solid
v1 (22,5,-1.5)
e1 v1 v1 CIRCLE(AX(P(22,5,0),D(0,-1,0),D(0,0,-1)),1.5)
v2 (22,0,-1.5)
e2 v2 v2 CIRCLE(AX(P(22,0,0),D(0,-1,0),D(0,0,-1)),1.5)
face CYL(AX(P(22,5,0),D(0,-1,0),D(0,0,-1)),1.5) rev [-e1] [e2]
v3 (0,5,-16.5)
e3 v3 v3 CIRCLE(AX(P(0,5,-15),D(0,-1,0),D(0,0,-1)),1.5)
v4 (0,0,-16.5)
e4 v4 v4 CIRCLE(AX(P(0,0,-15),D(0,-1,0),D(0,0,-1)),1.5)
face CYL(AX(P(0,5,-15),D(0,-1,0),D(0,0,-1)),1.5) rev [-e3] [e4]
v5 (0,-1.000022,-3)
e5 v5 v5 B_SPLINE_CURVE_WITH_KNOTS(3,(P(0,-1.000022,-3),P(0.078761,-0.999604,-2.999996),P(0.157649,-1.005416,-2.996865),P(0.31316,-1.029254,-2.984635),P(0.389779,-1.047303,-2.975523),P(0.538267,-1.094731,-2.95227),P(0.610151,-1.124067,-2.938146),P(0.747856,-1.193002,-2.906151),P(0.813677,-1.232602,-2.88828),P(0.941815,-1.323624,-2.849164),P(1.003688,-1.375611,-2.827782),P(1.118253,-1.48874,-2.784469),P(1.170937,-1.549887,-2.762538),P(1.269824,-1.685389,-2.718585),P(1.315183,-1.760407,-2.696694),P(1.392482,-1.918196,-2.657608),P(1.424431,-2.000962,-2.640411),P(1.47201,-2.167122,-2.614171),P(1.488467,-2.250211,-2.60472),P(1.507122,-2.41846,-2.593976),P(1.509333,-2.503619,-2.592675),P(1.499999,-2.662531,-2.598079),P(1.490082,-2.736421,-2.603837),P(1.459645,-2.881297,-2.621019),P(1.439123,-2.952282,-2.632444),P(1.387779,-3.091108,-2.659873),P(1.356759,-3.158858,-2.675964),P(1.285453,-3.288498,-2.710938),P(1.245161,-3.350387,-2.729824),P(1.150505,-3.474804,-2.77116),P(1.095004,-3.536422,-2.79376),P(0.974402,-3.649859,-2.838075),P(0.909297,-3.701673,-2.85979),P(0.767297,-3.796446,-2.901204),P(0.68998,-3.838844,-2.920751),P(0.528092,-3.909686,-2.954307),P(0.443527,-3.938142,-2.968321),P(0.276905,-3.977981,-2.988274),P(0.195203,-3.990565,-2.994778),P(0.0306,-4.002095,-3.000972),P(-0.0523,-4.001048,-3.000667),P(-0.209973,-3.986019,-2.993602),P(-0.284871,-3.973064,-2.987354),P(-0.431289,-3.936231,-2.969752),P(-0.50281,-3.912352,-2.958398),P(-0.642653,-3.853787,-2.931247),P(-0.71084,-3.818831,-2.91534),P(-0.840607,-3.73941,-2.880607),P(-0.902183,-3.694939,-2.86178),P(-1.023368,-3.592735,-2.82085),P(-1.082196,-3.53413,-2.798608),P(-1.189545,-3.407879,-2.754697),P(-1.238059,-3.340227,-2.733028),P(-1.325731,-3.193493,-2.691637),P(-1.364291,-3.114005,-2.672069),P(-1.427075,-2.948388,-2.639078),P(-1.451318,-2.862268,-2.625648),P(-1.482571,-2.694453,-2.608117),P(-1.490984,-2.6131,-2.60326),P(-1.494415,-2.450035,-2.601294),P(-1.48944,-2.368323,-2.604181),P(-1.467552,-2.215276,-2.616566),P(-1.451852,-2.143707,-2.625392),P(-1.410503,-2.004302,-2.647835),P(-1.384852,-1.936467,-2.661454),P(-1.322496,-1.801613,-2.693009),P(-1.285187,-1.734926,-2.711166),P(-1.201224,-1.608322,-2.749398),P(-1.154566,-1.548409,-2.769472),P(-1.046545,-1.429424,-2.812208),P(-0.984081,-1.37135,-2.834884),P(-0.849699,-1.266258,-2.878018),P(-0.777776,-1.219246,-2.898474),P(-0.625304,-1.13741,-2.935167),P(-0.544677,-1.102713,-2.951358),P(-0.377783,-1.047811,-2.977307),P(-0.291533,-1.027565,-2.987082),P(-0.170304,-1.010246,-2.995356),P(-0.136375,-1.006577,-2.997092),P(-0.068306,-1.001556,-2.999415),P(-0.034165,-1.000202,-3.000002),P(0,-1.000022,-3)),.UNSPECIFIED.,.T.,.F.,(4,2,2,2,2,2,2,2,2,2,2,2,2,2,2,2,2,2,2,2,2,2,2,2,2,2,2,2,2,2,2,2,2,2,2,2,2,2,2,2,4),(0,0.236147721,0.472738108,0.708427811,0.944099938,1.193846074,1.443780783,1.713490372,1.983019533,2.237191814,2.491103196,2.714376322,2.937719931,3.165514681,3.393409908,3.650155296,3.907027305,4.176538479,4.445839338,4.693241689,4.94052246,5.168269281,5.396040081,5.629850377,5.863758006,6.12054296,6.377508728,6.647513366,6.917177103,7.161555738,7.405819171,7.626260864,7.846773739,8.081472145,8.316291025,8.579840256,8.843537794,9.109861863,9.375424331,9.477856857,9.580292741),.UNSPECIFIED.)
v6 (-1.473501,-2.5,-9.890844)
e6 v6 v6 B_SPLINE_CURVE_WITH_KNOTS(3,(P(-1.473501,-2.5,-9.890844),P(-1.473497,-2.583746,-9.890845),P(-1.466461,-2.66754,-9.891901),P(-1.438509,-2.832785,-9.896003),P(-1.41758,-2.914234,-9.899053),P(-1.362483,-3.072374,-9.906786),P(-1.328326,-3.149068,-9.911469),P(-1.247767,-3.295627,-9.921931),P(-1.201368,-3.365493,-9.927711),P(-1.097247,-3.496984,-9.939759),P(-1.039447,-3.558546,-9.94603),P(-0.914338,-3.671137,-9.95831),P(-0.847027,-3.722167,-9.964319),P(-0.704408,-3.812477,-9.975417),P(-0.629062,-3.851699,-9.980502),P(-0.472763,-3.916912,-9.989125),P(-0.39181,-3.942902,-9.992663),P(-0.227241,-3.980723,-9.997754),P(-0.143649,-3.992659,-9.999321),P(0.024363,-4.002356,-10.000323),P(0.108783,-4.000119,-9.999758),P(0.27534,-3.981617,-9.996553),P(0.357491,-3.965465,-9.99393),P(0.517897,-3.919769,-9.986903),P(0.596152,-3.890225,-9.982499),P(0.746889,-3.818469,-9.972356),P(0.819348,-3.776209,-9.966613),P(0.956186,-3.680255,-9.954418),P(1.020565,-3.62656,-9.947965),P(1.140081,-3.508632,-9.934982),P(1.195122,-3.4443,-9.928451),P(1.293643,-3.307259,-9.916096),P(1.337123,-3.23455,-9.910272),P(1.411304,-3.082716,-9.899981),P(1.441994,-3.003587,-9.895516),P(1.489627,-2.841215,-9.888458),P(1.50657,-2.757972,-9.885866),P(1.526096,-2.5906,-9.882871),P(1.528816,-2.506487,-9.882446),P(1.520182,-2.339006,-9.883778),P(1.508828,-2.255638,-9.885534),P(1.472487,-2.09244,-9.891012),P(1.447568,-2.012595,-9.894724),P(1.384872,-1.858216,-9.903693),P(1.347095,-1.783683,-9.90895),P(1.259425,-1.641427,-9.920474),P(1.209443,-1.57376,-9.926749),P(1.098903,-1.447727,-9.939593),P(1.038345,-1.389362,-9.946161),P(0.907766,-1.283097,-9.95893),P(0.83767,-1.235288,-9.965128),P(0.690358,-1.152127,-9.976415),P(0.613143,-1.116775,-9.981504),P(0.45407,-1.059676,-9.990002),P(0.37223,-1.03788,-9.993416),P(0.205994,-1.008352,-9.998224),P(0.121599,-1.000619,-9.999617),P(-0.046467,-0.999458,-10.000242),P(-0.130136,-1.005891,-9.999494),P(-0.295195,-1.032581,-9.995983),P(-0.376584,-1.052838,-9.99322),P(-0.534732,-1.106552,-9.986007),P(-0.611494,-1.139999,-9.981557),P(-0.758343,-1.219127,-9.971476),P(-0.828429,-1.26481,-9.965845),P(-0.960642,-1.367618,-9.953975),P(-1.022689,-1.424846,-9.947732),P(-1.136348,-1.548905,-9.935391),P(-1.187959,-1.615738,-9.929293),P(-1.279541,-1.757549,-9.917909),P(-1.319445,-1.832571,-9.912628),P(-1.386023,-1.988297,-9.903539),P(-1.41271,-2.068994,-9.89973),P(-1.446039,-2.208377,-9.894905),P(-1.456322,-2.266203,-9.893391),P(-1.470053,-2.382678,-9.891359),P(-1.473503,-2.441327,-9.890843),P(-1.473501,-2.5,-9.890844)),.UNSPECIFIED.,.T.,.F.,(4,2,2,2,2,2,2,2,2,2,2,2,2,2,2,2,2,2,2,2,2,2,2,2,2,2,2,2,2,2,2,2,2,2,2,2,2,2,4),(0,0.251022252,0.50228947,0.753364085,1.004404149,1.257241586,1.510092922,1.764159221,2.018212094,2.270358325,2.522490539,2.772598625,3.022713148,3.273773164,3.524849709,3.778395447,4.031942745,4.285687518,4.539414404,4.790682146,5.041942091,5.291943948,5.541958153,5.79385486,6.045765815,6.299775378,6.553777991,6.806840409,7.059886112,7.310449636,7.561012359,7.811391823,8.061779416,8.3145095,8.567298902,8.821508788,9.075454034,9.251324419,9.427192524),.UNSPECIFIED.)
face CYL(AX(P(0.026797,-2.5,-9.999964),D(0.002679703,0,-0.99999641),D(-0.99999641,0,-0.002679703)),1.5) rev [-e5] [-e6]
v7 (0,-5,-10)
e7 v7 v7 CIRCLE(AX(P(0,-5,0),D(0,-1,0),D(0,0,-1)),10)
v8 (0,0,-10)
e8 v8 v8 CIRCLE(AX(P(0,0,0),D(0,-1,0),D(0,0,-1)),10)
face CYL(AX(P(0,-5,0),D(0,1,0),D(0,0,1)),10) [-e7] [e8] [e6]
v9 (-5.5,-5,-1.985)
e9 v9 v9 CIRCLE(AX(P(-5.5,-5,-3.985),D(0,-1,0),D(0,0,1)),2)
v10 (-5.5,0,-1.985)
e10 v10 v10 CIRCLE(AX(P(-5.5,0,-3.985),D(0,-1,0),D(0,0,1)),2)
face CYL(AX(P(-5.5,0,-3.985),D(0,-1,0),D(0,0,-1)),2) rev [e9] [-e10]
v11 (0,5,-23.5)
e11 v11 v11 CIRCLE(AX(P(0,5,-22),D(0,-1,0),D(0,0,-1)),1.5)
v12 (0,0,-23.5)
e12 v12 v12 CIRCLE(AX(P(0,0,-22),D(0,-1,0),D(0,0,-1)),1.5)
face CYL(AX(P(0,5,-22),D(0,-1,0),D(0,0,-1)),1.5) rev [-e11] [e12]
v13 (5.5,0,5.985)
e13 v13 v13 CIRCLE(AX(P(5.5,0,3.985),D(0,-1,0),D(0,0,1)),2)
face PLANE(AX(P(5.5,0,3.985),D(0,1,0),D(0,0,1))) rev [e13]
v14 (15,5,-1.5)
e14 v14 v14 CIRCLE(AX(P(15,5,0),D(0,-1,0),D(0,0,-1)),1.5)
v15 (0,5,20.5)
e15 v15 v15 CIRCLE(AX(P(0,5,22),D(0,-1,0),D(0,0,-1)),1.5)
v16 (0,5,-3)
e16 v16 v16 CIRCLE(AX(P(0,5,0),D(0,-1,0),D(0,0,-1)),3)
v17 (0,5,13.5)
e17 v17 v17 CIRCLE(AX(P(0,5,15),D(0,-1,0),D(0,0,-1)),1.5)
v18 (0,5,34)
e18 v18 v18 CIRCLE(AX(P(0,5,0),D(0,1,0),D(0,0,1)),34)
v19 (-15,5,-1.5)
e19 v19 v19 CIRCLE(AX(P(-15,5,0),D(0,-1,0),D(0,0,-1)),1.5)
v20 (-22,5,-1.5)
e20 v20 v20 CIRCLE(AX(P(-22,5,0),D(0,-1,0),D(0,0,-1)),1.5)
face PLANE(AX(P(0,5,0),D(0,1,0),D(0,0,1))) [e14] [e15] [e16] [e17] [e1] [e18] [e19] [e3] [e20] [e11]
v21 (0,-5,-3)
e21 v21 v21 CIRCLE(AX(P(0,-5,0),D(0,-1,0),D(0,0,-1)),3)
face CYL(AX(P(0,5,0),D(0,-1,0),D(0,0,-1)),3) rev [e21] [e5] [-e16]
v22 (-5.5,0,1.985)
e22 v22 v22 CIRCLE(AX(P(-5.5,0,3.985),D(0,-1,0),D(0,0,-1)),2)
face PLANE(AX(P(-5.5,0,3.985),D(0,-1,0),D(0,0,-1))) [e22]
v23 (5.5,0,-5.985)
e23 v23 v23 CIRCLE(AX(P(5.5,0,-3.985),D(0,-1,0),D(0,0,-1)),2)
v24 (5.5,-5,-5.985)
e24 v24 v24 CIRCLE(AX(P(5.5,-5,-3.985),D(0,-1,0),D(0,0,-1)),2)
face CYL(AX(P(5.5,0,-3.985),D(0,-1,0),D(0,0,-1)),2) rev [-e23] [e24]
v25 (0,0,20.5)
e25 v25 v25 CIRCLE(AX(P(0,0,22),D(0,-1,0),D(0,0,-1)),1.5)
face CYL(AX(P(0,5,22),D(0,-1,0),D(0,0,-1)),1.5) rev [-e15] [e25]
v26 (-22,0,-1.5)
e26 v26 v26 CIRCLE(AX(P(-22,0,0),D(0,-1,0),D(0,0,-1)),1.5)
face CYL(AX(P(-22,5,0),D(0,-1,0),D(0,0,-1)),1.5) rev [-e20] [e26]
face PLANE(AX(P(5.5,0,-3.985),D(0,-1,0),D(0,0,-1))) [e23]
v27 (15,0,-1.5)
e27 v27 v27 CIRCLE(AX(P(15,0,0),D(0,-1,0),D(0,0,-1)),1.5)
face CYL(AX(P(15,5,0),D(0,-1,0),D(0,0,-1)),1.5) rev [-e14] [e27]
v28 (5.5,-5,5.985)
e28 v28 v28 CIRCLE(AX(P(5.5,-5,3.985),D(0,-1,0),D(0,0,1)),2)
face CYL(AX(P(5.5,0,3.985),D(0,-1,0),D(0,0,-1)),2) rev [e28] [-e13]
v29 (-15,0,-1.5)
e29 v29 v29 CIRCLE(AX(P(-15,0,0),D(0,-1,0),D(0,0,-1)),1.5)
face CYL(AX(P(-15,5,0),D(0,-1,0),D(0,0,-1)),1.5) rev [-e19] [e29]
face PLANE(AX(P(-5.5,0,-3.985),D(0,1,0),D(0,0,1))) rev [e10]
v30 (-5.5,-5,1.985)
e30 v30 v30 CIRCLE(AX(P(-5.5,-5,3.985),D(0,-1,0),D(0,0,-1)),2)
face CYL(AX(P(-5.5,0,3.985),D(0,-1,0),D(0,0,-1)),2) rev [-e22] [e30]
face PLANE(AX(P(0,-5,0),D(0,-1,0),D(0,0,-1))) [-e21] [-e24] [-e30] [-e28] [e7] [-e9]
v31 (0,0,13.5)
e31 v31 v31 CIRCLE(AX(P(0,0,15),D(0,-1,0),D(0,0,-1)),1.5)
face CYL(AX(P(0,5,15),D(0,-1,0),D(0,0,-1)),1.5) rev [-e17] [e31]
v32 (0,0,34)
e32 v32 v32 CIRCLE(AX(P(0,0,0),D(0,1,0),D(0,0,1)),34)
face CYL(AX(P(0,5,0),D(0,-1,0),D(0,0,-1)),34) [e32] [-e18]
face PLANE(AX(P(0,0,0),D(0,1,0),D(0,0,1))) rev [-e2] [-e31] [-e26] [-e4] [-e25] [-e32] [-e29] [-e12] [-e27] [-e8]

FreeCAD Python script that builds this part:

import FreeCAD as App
import Part
import Sketcher

V = App.Vector

doc = App.newDocument("Part")
body = doc.addObject("PartDesign::Body", "Body")

# Sketch on XZ plane
sketch1 = body.newObject("Sketcher::SketchObject", "Sketch")
sketch1.AttachmentSupport = (doc.getObject("XZ_Plane"), [""])
sketch1.MapMode = "FlatFace"
sketch1.addGeometry(Part.Circle(V(0, 0, 0), V(0, 0, 1), 34), False)
sketch1.addConstraint(Sketcher.Constraint("Coincident", 0, 3, -1, 1))
sketch1.addConstraint(Sketcher.Constraint("Diameter", 0, 68.0))
pad1 = body.newObject("PartDesign::Pad", "Pad")
pad1.Profile = sketch1
pad1.Length = 5
pad1.Reversed = True

# Sketch on XZ plane
sketch2 = body.newObject("Sketcher::SketchObject", "Sketch001")
sketch2.AttachmentSupport = (doc.getObject("XZ_Plane"), [""])
sketch2.MapMode = "FlatFace"
sketch2.addGeometry(Part.Circle(V(0, 22, 0), V(0, 0, 1), 1.5), False)
sketch2.addGeometry(Part.Circle(V(22, 0, 0), V(0, 0, 1), 1.5), False)
sketch2.addGeometry(Part.Circle(V(0, -22, 0), V(0, 0, 1), 1.5), False)
sketch2.addGeometry(Part.Circle(V(-22, 0, 0), V(0, 0, 1), 1.5), False)
sketch2.addConstraint(Sketcher.Constraint("Equal", 0, 1))
sketch2.addConstraint(Sketcher.Constraint("Equal", 1, 2))
sketch2.addConstraint(Sketcher.Constraint("Equal", 2, 3))
sketch2.addConstraint(Sketcher.Constraint("Symmetric", 0, 3, 2, 3, -1, 1))
sketch2.addConstraint(Sketcher.Constraint("Symmetric", 1, 3, 3, 3, -1, 1))
sketch2.addConstraint(Sketcher.Constraint("PointOnObject", 0, 3, -2))
sketch2.addConstraint(Sketcher.Constraint("PointOnObject", 1, 3, -1))
sketch2.addConstraint(Sketcher.Constraint("Diameter", 0, 3.0))
sketch2.addConstraint(Sketcher.Constraint("DistanceY", -1, 1, 0, 3, 22.0))
sketch2.addConstraint(Sketcher.Constraint("DistanceX", -1, 1, 1, 3, 22.0))
pocket1 = body.newObject("PartDesign::Pocket", "Pocket")
pocket1.Profile = sketch2
pocket1.Length = 5

# Sketch on XZ plane
sketch3 = body.newObject("Sketcher::SketchObject", "Sketch002")
sketch3.AttachmentSupport = (doc.getObject("XZ_Plane"), [""])
sketch3.MapMode = "FlatFace"
sketch3.addGeometry(Part.Circle(V(0, 15, 0), V(0, 0, 1), 1.5), False)
sketch3.addGeometry(Part.Circle(V(15, 0, 0), V(0, 0, 1), 1.5), False)
sketch3.addGeometry(Part.Circle(V(0, -15, 0), V(0, 0, 1), 1.5), False)
sketch3.addGeometry(Part.Circle(V(-15, 0, 0), V(0, 0, 1), 1.5), False)
sketch3.addConstraint(Sketcher.Constraint("Equal", 0, 1))
sketch3.addConstraint(Sketcher.Constraint("Equal", 1, 2))
sketch3.addConstraint(Sketcher.Constraint("Equal", 2, 3))
sketch3.addConstraint(Sketcher.Constraint("Symmetric", 0, 3, 2, 3, -1, 1))
sketch3.addConstraint(Sketcher.Constraint("Symmetric", 1, 3, 3, 3, -1, 1))
sketch3.addConstraint(Sketcher.Constraint("PointOnObject", 0, 3, -2))
sketch3.addConstraint(Sketcher.Constraint("PointOnObject", 1, 3, -1))
sketch3.addConstraint(Sketcher.Constraint("Diameter", 0, 3.0))
sketch3.addConstraint(Sketcher.Constraint("DistanceY", -1, 1, 0, 3, 15.0))
sketch3.addConstraint(Sketcher.Constraint("DistanceX", -1, 1, 1, 3, 15.0))
pocket2 = body.newObject("PartDesign::Pocket", "Pocket001")
pocket2.Profile = sketch3
pocket2.Length = 5

# Sketch on XZ plane
sketch4 = body.newObject("Sketcher::SketchObject", "Sketch003")
sketch4.AttachmentSupport = (doc.getObject("XZ_Plane"), [""])
sketch4.MapMode = "FlatFace"
sketch4.addGeometry(Part.Circle(V(0, 0, 0), V(0, 0, 1), 10), False)
sketch4.addConstraint(Sketcher.Constraint("Coincident", 0, 3, -1, 1))
sketch4.addConstraint(Sketcher.Constraint("Diameter", 0, 20.0))
pad2 = body.newObject("PartDesign::Pad", "Pad001")
pad2.Profile = sketch4
pad2.Length = 5

# Sketch on XZ plane
sketch5 = body.newObject("Sketcher::SketchObject", "Sketch004")
sketch5.AttachmentSupport = (doc.getObject("XZ_Plane"), [""])
sketch5.MapMode = "FlatFace"
sketch5.AttachmentOffset = App.Placement(V(0, 0, 5), App.Rotation())
sketch5.addGeometry(Part.Circle(V(-5.5, 4, 0), V(0, 0, 1), 2), False)
sketch5.addGeometry(Part.Circle(V(5.5, 4, 0), V(0, 0, 1), 2), False)
sketch5.addGeometry(Part.Circle(V(5.5, -4, 0), V(0, 0, 1), 2), False)
sketch5.addGeometry(Part.Circle(V(-5.5, -4, 0), V(0, 0, 1), 2), False)
sketch5.addConstraint(Sketcher.Constraint("Equal", 0, 1))
sketch5.addConstraint(Sketcher.Constraint("Equal", 1, 2))
sketch5.addConstraint(Sketcher.Constraint("Equal", 2, 3))
sketch5.addConstraint(Sketcher.Constraint("Symmetric", 0, 3, 2, 3, -1, 1))
sketch5.addConstraint(Sketcher.Constraint("Symmetric", 1, 3, 3, 3, -1, 1))
sketch5.addConstraint(Sketcher.Constraint("Symmetric", 0, 3, 1, 3, -2))
sketch5.addConstraint(Sketcher.Constraint("Diameter", 0, 4.0))
sketch5.addConstraint(Sketcher.Constraint("DistanceX", 0, 3, 1, 3, 11.0))
sketch5.addConstraint(Sketcher.Constraint("DistanceY", 2, 3, 1, 3, 7.97))
pocket3 = body.newObject("PartDesign::Pocket", "Pocket002")
pocket3.Profile = sketch5
pocket3.Length = 5

# Sketch on XZ plane
sketch6 = body.newObject("Sketcher::SketchObject", "Sketch005")
sketch6.AttachmentSupport = (doc.getObject("XZ_Plane"), [""])
sketch6.MapMode = "FlatFace"
sketch6.AttachmentOffset = App.Placement(V(0, 0, 5), App.Rotation())
sketch6.addGeometry(Part.Circle(V(0, 0, 0), V(0, 0, 1), 3), False)
sketch6.addConstraint(Sketcher.Constraint("Coincident", 0, 3, -1, 1))
sketch6.addConstraint(Sketcher.Constraint("Diameter", 0, 6.0))
pocket4 = body.newObject("PartDesign::Pocket", "Pocket003")
pocket4.Profile = sketch6
pocket4.Length = 10

# Sketch on an angled plane
sketch7 = body.newObject("Sketcher::SketchObject", "Sketch006")
sketch7.Placement = App.Placement(V(0.026797, 0, -9.999964), App.Rotation(V(-0.99999641, 0, -0.002679703), V(0, 1.000000001, 0), V(0.002679703, 0, -0.99999641), "ZXY"))
sketch7.addGeometry(Part.Circle(V(0, -2.5, 0), V(0, 0, 1), 1.5), False)
sketch7.addConstraint(Sketcher.Constraint("PointOnObject", 0, 3, -2))
sketch7.addConstraint(Sketcher.Constraint("Diameter", 0, 3.0))
sketch7.addConstraint(Sketcher.Constraint("DistanceY", 0, 3, -1, 1, 2.5))
doc.recompute()
hole = body.newObject("PartDesign::Hole", "Hole")
hole.Profile = sketch7
hole.ThreadType = "None"
hole.Diameter = 3
hole.DepthType = "Dimension"
hole.Depth = 7.84
hole.DrillPoint = "Angled"
hole.DrillPointAngle = 118

doc.recompute()
